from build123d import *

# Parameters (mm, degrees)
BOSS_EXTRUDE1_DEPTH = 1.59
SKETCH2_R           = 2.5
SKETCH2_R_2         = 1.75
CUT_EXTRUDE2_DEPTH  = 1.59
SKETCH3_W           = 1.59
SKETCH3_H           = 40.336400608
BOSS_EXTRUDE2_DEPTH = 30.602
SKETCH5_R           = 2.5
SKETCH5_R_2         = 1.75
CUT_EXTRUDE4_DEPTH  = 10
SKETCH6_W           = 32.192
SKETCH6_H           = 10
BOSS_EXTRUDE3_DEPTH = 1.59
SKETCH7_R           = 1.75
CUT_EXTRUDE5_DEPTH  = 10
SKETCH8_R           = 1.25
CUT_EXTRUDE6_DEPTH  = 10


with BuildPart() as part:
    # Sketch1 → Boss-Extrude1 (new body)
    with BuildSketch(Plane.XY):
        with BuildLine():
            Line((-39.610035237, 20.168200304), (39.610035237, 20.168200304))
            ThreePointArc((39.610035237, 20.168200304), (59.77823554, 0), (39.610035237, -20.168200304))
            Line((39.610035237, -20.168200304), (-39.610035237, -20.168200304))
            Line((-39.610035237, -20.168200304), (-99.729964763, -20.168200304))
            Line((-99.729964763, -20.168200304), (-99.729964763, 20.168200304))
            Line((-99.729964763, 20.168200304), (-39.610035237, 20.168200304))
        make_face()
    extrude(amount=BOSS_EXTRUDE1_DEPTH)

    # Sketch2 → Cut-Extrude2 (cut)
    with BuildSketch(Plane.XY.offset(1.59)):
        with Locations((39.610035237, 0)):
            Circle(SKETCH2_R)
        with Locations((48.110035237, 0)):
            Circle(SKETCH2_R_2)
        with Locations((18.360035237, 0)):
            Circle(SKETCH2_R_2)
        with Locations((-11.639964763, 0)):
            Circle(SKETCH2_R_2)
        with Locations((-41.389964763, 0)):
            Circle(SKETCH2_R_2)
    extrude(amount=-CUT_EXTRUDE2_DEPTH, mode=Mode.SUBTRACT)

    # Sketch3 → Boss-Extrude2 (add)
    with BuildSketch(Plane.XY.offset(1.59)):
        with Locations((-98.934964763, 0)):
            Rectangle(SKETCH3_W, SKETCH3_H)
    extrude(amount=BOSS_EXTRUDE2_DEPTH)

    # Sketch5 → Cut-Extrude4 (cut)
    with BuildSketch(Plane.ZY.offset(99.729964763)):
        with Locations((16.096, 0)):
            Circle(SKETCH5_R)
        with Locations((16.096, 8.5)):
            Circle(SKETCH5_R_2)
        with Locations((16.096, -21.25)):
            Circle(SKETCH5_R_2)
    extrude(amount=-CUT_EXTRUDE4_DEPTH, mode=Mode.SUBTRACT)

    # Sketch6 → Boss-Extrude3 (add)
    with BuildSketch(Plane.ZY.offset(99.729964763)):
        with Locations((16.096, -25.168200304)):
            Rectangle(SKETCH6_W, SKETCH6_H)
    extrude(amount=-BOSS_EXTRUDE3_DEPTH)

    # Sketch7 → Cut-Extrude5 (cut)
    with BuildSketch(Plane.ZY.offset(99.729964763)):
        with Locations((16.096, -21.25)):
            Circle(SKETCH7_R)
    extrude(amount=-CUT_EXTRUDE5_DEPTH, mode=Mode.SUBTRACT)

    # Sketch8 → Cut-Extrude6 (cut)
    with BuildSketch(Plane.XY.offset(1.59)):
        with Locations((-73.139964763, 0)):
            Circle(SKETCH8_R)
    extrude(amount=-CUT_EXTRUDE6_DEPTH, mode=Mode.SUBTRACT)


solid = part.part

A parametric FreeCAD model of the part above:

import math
import FreeCAD as App
import Part
import Sketcher

doc = App.newDocument("Part")
params = doc.addObject("Spreadsheet::Sheet", "Params")
for row, (alias, value) in enumerate([
    ("sketch1_width", "139.34 mm"),
    ("pad1_length", "1.59 mm"),
    ("sketch2_diameter", "5 mm"),
    ("sketch2_diameter2", "3.5 mm"),
    ("pocket1_length", "1.59 mm"),
    ("sketch3_width", "1.59 mm"),
    ("pad2_length", "30.602 mm"),
    ("sketch4_diameter", "5 mm"),
    ("sketch4_diameter2", "3.5 mm"),
    ("pocket2_length", "10 mm"),
    ("sketch5_width", "10 mm"),
    ("pad3_length", "1.59 mm"),
    ("sketch6_diameter", "3.5 mm"),
    ("pocket3_length", "10 mm"),
    ("sketch7_diameter", "2.5 mm"),
    ("pocket4_length", "10 mm"),
], start=1):
    params.set(f"A{row}", alias)
    params.set(f"B{row}", "=" + value)
    params.setAlias(f"B{row}", alias)

body = doc.addObject("PartDesign::Body", "Body")

sketch1 = doc.addObject("Sketcher::SketchObject", "Sketch")
body.addObject(sketch1)
sketch1.AttachmentSupport = (doc.XY_Plane, [""])
sketch1.MapMode = "FlatFace"
sketch1.addGeometry(Part.ArcOfCircle(Part.Circle(App.Vector(39.610035, 0, 0), App.Vector(0, 0, 1), 20.1682), math.radians(-90), math.radians(90)), False)
sketch1.addGeometry(Part.LineSegment(App.Vector(39.610035, 20.1682, 0), App.Vector(-99.729965, 20.1682, 0)), False)
sketch1.addGeometry(Part.LineSegment(App.Vector(-99.729965, 20.1682, 0), App.Vector(-99.729965, -20.1682, 0)), False)
sketch1.addGeometry(Part.LineSegment(App.Vector(-99.729965, -20.1682, 0), App.Vector(39.610035, -20.1682, 0)), False)
sketch1.addConstraint(Sketcher.Constraint("Tangent", 0, 2, 1, 1))
sketch1.addConstraint(Sketcher.Constraint("Coincident", 1, 2, 2, 1))
sketch1.addConstraint(Sketcher.Constraint("Coincident", 2, 2, 3, 1))
sketch1.addConstraint(Sketcher.Constraint("Tangent", 3, 2, 0, 1))
sketch1.addConstraint(Sketcher.Constraint("Horizontal", 1))
sketch1.addConstraint(Sketcher.Constraint("Vertical", 2))
sketch1.addConstraint(Sketcher.Constraint("Horizontal", 3))
sketch1.addConstraint(Sketcher.Constraint("PointOnObject", 0, 3, -1))
sketch1.addConstraint(Sketcher.Constraint("DistanceX", 1, 2, 1, 1, 139.34))
sketch1.addConstraint(Sketcher.Constraint("Radius", 0, 20.1682))
sketch1.addConstraint(Sketcher.Constraint("DistanceX", -1, 1, 0, 3, 39.610035))
sketch1.setExpression("Constraints[8]", "Params.sketch1_width")
pad1 = doc.addObject("PartDesign::Pad", "Pad")
body.addObject(pad1)
pad1.Profile = sketch1
pad1.setExpression("Length", "Params.pad1_length")

sketch2 = doc.addObject("Sketcher::SketchObject", "Sketch001")
body.addObject(sketch2)
sketch2.AttachmentSupport = (doc.XY_Plane, [""])
sketch2.MapMode = "FlatFace"
sketch2.AttachmentOffset = App.Placement(App.Vector(0, 0, 1.59), App.Rotation())
sketch2.addGeometry(Part.Circle(App.Vector(39.610035, 0, 0), App.Vector(0, 0, 1), 2.5), False)
sketch2.addGeometry(Part.Circle(App.Vector(48.110035, 0, 0), App.Vector(0, 0, 1), 1.75), False)
sketch2.addGeometry(Part.Circle(App.Vector(18.360035, 0, 0), App.Vector(0, 0, 1), 1.75), False)
sketch2.addGeometry(Part.Circle(App.Vector(-11.639965, 0, 0), App.Vector(0, 0, 1), 1.75), False)
sketch2.addGeometry(Part.Circle(App.Vector(-41.389965, 0, 0), App.Vector(0, 0, 1), 1.75), False)
sketch2.addConstraint(Sketcher.Constraint("Equal", 1, 2))
sketch2.addConstraint(Sketcher.Constraint("Equal", 2, 3))
sketch2.addConstraint(Sketcher.Constraint("Equal", 3, 4))
sketch2.addConstraint(Sketcher.Constraint("PointOnObject", 0, 3, -1))
sketch2.addConstraint(Sketcher.Constraint("PointOnObject", 1, 3, -1))
sketch2.addConstraint(Sketcher.Constraint("PointOnObject", 2, 3, -1))
sketch2.addConstraint(Sketcher.Constraint("PointOnObject", 3, 3, -1))
sketch2.addConstraint(Sketcher.Constraint("PointOnObject", 4, 3, -1))
sketch2.addConstraint(Sketcher.Constraint("Diameter", 0, 5.0))
sketch2.addConstraint(Sketcher.Constraint("Diameter", 1, 3.5))
sketch2.addConstraint(Sketcher.Constraint("DistanceX", 3, 3, 2, 3, 30.0))
sketch2.addConstraint(Sketcher.Constraint("DistanceX", 4, 3, 0, 3, 81.0))
sketch2.addConstraint(Sketcher.Constraint("DistanceX", 0, 3, 1, 3, 8.5))
sketch2.addConstraint(Sketcher.Constraint("DistanceX", 2, 3, 0, 3, 21.25))
sketch2.addConstraint(Sketcher.Constraint("DistanceX", -1, 1, 0, 3, 39.610035))
sketch2.setExpression("Constraints[8]", "Params.sketch2_diameter")
sketch2.setExpression("Constraints[9]", "Params.sketch2_diameter2")
pocket1 = doc.addObject("PartDesign::Pocket", "Pocket")
body.addObject(pocket1)
pocket1.Profile = sketch2
pocket1.setExpression("Length", "Params.pocket1_length")

sketch3 = doc.addObject("Sketcher::SketchObject", "Sketch002")
body.addObject(sketch3)
sketch3.AttachmentSupport = (doc.XY_Plane, [""])
sketch3.MapMode = "FlatFace"
sketch3.AttachmentOffset = App.Placement(App.Vector(0, 0, 1.59), App.Rotation())
sketch3.addGeometry(Part.LineSegment(App.Vector(-99.729965, 20.1682, 0), App.Vector(-99.729965, -20.1682, 0)), False)
sketch3.addGeometry(Part.LineSegment(App.Vector(-99.729965, -20.1682, 0), App.Vector(-98.139965, -20.1682, 0)), False)
sketch3.addGeometry(Part.LineSegment(App.Vector(-98.139965, -20.1682, 0), App.Vector(-98.139965, 20.1682, 0)), False)
sketch3.addGeometry(Part.LineSegment(App.Vector(-98.139965, 20.1682, 0), App.Vector(-99.729965, 20.1682, 0)), False)
sketch3.addConstraint(Sketcher.Constraint("Coincident", 0, 2, 1, 1))
sketch3.addConstraint(Sketcher.Constraint("Coincident", 1, 2, 2, 1))
sketch3.addConstraint(Sketcher.Constraint("Coincident", 2, 2, 3, 1))
sketch3.addConstraint(Sketcher.Constraint("Coincident", 3, 2, 0, 1))
sketch3.addConstraint(Sketcher.Constraint("Vertical", 0))
sketch3.addConstraint(Sketcher.Constraint("Horizontal", 1))
sketch3.addConstraint(Sketcher.Constraint("Vertical", 2))
sketch3.addConstraint(Sketcher.Constraint("Horizontal", 3))
sketch3.addConstraint(Sketcher.Constraint("DistanceX", 1, 1, 1, 2, 1.59))
sketch3.addConstraint(Sketcher.Constraint("DistanceY", 0, 2, 0, 1, 40.336401))
sketch3.addConstraint(Sketcher.Constraint("DistanceY", 0, 2, -1, 1, 20.1682))
sketch3.addConstraint(Sketcher.Constraint("DistanceX", 0, 2, -1, 1, 99.729965))
sketch3.setExpression("Constraints[8]", "Params.sketch3_width")
pad2 = doc.addObject("PartDesign::Pad", "Pad001")
body.addObject(pad2)
pad2.Profile = sketch3
pad2.setExpression("Length", "Params.pad2_length")

sketch4 = doc.addObject("Sketcher::SketchObject", "Sketch003")
body.addObject(sketch4)
sketch4.AttachmentSupport = (doc.YZ_Plane, [""])
sketch4.MapMode = "FlatFace"
sketch4.AttachmentOffset = App.Placement(App.Vector(0, 0, -99.729965), App.Rotation())
sketch4.addGeometry(Part.Circle(App.Vector(0, 16.096, 0), App.Vector(0, 0, 1), 2.5), False)
sketch4.addGeometry(Part.Circle(App.Vector(8.5, 16.096, 0), App.Vector(0, 0, 1), 1.75), False)
sketch4.addGeometry(Part.Circle(App.Vector(-21.25, 16.096, 0), App.Vector(0, 0, 1), 1.75), False)
sketch4.addConstraint(Sketcher.Constraint("Equal", 1, 2))
sketch4.addConstraint(Sketcher.Constraint("PointOnObject", 0, 3, -2))
sketch4.addConstraint(Sketcher.Constraint("Horizontal", 0, 3, 1, 3))
sketch4.addConstraint(Sketcher.Constraint("Horizontal", 1, 3, 2, 3))
sketch4.addConstraint(Sketcher.Constraint("Diameter", 0, 5.0))
sketch4.addConstraint(Sketcher.Constraint("Diameter", 1, 3.5))
sketch4.addConstraint(Sketcher.Constraint("DistanceX", -1, 1, 1, 3, 8.5))
sketch4.addConstraint(Sketcher.Constraint("DistanceX", 2, 3, -1, 1, 21.25))
sketch4.addConstraint(Sketcher.Constraint("DistanceY", -1, 1, 0, 3, 16.096))
sketch4.setExpression("Constraints[4]", "Params.sketch4_diameter")
sketch4.setExpression("Constraints[5]", "Params.sketch4_diameter2")
pocket2 = doc.addObject("PartDesign::Pocket", "Pocket001")
body.addObject(pocket2)
pocket2.Profile = sketch4
pocket2.setExpression("Length", "Params.pocket2_length")
pocket2.Reversed = True

sketch5 = doc.addObject("Sketcher::SketchObject", "Sketch004")
body.addObject(sketch5)
sketch5.AttachmentSupport = (doc.YZ_Plane, [""])
sketch5.MapMode = "FlatFace"
sketch5.AttachmentOffset = App.Placement(App.Vector(0, 0, -99.729965), App.Rotation())
sketch5.addGeometry(Part.LineSegment(App.Vector(-20.1682, 0, 0), App.Vector(-30.1682, 0, 0)), False)
sketch5.addGeometry(Part.LineSegment(App.Vector(-30.1682, 0, 0), App.Vector(-30.1682, 32.192, 0)), False)
sketch5.addGeometry(Part.LineSegment(App.Vector(-30.1682, 32.192, 0), App.Vector(-20.1682, 32.192, 0)), False)
sketch5.addGeometry(Part.LineSegment(App.Vector(-20.1682, 32.192, 0), App.Vector(-20.1682, 0, 0)), False)
sketch5.addConstraint(Sketcher.Constraint("Coincident", 0, 2, 1, 1))
sketch5.addConstraint(Sketcher.Constraint("Coincident", 1, 2, 2, 1))
sketch5.addConstraint(Sketcher.Constraint("Coincident", 2, 2, 3, 1))
sketch5.addConstraint(Sketcher.Constraint("Coincident", 3, 2, 0, 1))
sketch5.addConstraint(Sketcher.Constraint("Horizontal", 0))
sketch5.addConstraint(Sketcher.Constraint("Vertical", 1))
sketch5.addConstraint(Sketcher.Constraint("Horizontal", 2))
sketch5.addConstraint(Sketcher.Constraint("Vertical", 3))
sketch5.addConstraint(Sketcher.Constraint("PointOnObject", 0, 2, -1))
sketch5.addConstraint(Sketcher.Constraint("DistanceX", 0, 2, 0, 1, 10.0))
sketch5.addConstraint(Sketcher.Constraint("DistanceY", 1, 1, 1, 2, 32.192))
sketch5.addConstraint(Sketcher.Constraint("DistanceX", 0, 2, -1, 1, 30.1682))
sketch5.setExpression("Constraints[9]", "Params.sketch5_width")
pad3 = doc.addObject("PartDesign::Pad", "Pad002")
body.addObject(pad3)
pad3.Profile = sketch5
pad3.setExpression("Length", "Params.pad3_length")

sketch6 = doc.addObject("Sketcher::SketchObject", "Sketch005")
body.addObject(sketch6)
sketch6.AttachmentSupport = (doc.YZ_Plane, [""])
sketch6.MapMode = "FlatFace"
sketch6.AttachmentOffset = App.Placement(App.Vector(0, 0, -99.729965), App.Rotation())
sketch6.addGeometry(Part.Circle(App.Vector(-21.25, 16.096, 0), App.Vector(0, 0, 1), 1.75), False)
sketch6.addConstraint(Sketcher.Constraint("Diameter", 0, 3.5))
sketch6.addConstraint(Sketcher.Constraint("DistanceX", 0, 3, -1, 1, 21.25))
sketch6.addConstraint(Sketcher.Constraint("DistanceY", -1, 1, 0, 3, 16.096))
sketch6.setExpression("Constraints[0]", "Params.sketch6_diameter")
pocket3 = doc.addObject("PartDesign::Pocket", "Pocket002")
body.addObject(pocket3)
pocket3.Profile = sketch6
pocket3.setExpression("Length", "Params.pocket3_length")
pocket3.Reversed = True

sketch7 = doc.addObject("Sketcher::SketchObject", "Sketch006")
body.addObject(sketch7)
sketch7.AttachmentSupport = (doc.XY_Plane, [""])
sketch7.MapMode = "FlatFace"
sketch7.AttachmentOffset = App.Placement(App.Vector(0, 0, 1.59), App.Rotation())
sketch7.addGeometry(Part.Circle(App.Vector(-73.139965, 0, 0), App.Vector(0, 0, 1), 1.25), False)
sketch7.addConstraint(Sketcher.Constraint("PointOnObject", 0, 3, -1))
sketch7.addConstraint(Sketcher.Constraint("Diameter", 0, 2.5))
sketch7.addConstraint(Sketcher.Constraint("DistanceX", 0, 3, -1, 1, 73.139965))
sketch7.setExpression("Constraints[1]", "Params.sketch7_diameter")
pocket4 = doc.addObject("PartDesign::Pocket", "Pocket003")
body.addObject(pocket4)
pocket4.Profile = sketch7
pocket4.setExpression("Length", "Params.pocket4_length")

doc.recompute()
